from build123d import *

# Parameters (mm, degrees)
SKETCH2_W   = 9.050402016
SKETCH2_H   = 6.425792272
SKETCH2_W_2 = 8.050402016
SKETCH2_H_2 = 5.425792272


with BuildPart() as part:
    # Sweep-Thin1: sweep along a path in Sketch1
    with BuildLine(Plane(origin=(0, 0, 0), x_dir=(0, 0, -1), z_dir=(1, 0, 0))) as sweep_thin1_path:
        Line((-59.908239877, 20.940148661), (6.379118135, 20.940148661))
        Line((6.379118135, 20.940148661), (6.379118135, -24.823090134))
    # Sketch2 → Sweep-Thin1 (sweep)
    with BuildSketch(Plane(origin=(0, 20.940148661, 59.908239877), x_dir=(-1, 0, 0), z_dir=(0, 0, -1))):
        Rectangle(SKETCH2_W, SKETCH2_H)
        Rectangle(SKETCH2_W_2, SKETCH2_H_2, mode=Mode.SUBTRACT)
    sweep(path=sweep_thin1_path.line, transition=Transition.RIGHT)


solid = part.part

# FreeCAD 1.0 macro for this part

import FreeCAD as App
import Part
import Sketcher
from FreeCAD import Vector


def add_polygon(sketch, points):
    """Adds a closed chain of lines whose ends are joined by coincident constraints."""
    first, n = sketch.GeometryCount, len(points)
    for a, b in zip(points, points[1:] + points[:1]):
        sketch.addGeometry(Part.LineSegment(App.Vector(*a, 0), App.Vector(*b, 0)), False)
    for i in range(n):
        sketch.addConstraint(Sketcher.Constraint("Coincident", first + i, 2, first + (i + 1) % n, 1))

doc = App.newDocument("Part")
body = doc.addObject("PartDesign::Body", "Body")

sketch1 = body.newObject("Sketcher::SketchObject", "Sketch")
sketch1.AttachmentSupport = (doc.getObject("XY_Plane"), [""])
sketch1.MapMode = "FlatFace"
sketch1.AttachmentOffset = App.Placement(Vector(0, 0, 59.90824), App.Rotation())
add_polygon(sketch1, [(4.525201, 24.153045), (4.525201, 17.727253), (-4.525201, 17.727253), (-4.525201, 24.153045)])
add_polygon(sketch1, [(-4.025201, 18.227253), (4.025201, 18.227253), (4.025201, 23.653045), (-4.025201, 23.653045)])
sketch1.addConstraint(Sketcher.Constraint("Vertical", 0))
sketch1.addConstraint(Sketcher.Constraint("Horizontal", 1))
sketch1.addConstraint(Sketcher.Constraint("Vertical", 2))
sketch1.addConstraint(Sketcher.Constraint("Horizontal", 3))
sketch1.addConstraint(Sketcher.Constraint("Horizontal", 4))
sketch1.addConstraint(Sketcher.Constraint("Vertical", 5))
sketch1.addConstraint(Sketcher.Constraint("Horizontal", 6))
sketch1.addConstraint(Sketcher.Constraint("Vertical", 7))
sketch1.addConstraint(Sketcher.Constraint("DistanceX", 4, 2, 0, 2, 0.5))
sketch1.addConstraint(Sketcher.Constraint("DistanceY", 0, 2, 4, 2, 0.5))
sketch1.addConstraint(Sketcher.Constraint("DistanceY", 5, 2, 3, 2, 0.5))
sketch1.addConstraint(Sketcher.Constraint("DistanceX", 2, 2, 6, 2, 0.5))
sketch1.addConstraint(Sketcher.Constraint("DistanceX", -1, 1, 0, 2, 4.525201))
sketch1.addConstraint(Sketcher.Constraint("DistanceX", 1, 2, -1, 1, 4.525201))
sketch1.addConstraint(Sketcher.Constraint("DistanceY", 0, 2, 0, 1, 6.425792))
sketch1.addConstraint(Sketcher.Constraint("DistanceY", -1, 1, 0, 2, 17.727253))

sketch2 = body.newObject("Sketcher::SketchObject", "Sketch001")
sketch2.AttachmentSupport = (doc.getObject("YZ_Plane"), [""])
sketch2.MapMode = "FlatFace"
sketch2.addGeometry(Part.LineSegment(Vector(20.940149, 59.90824, 0), Vector(20.940149, -6.379118, 0)), False)
sketch2.addGeometry(Part.LineSegment(Vector(20.940149, -6.379118, 0), Vector(-24.82309, -6.379118, 0)), False)
sketch2.addConstraint(Sketcher.Constraint("Coincident", 0, 2, 1, 1))
sketch2.addConstraint(Sketcher.Constraint("Vertical", 0))
sketch2.addConstraint(Sketcher.Constraint("Horizontal", 1))
sketch2.addConstraint(Sketcher.Constraint("DistanceX", 1, 2, 1, 1, 45.763239))
sketch2.addConstraint(Sketcher.Constraint("DistanceY", 0, 2, 0, 1, 66.287358))
sketch2.addConstraint(Sketcher.Constraint("DistanceX", -1, 1, 0, 1, 20.940149))
sketch2.addConstraint(Sketcher.Constraint("DistanceY", -1, 1, 0, 1, 59.90824))
doc.recompute()

additivepipe = body.newObject("PartDesign::AdditivePipe", "AdditivePipe")
additivepipe.Profile = sketch1
additivepipe.Spine = (sketch2, ["Edge1", "Edge2"])
additivepipe.Transition = "Right corner"

doc.recompute()
